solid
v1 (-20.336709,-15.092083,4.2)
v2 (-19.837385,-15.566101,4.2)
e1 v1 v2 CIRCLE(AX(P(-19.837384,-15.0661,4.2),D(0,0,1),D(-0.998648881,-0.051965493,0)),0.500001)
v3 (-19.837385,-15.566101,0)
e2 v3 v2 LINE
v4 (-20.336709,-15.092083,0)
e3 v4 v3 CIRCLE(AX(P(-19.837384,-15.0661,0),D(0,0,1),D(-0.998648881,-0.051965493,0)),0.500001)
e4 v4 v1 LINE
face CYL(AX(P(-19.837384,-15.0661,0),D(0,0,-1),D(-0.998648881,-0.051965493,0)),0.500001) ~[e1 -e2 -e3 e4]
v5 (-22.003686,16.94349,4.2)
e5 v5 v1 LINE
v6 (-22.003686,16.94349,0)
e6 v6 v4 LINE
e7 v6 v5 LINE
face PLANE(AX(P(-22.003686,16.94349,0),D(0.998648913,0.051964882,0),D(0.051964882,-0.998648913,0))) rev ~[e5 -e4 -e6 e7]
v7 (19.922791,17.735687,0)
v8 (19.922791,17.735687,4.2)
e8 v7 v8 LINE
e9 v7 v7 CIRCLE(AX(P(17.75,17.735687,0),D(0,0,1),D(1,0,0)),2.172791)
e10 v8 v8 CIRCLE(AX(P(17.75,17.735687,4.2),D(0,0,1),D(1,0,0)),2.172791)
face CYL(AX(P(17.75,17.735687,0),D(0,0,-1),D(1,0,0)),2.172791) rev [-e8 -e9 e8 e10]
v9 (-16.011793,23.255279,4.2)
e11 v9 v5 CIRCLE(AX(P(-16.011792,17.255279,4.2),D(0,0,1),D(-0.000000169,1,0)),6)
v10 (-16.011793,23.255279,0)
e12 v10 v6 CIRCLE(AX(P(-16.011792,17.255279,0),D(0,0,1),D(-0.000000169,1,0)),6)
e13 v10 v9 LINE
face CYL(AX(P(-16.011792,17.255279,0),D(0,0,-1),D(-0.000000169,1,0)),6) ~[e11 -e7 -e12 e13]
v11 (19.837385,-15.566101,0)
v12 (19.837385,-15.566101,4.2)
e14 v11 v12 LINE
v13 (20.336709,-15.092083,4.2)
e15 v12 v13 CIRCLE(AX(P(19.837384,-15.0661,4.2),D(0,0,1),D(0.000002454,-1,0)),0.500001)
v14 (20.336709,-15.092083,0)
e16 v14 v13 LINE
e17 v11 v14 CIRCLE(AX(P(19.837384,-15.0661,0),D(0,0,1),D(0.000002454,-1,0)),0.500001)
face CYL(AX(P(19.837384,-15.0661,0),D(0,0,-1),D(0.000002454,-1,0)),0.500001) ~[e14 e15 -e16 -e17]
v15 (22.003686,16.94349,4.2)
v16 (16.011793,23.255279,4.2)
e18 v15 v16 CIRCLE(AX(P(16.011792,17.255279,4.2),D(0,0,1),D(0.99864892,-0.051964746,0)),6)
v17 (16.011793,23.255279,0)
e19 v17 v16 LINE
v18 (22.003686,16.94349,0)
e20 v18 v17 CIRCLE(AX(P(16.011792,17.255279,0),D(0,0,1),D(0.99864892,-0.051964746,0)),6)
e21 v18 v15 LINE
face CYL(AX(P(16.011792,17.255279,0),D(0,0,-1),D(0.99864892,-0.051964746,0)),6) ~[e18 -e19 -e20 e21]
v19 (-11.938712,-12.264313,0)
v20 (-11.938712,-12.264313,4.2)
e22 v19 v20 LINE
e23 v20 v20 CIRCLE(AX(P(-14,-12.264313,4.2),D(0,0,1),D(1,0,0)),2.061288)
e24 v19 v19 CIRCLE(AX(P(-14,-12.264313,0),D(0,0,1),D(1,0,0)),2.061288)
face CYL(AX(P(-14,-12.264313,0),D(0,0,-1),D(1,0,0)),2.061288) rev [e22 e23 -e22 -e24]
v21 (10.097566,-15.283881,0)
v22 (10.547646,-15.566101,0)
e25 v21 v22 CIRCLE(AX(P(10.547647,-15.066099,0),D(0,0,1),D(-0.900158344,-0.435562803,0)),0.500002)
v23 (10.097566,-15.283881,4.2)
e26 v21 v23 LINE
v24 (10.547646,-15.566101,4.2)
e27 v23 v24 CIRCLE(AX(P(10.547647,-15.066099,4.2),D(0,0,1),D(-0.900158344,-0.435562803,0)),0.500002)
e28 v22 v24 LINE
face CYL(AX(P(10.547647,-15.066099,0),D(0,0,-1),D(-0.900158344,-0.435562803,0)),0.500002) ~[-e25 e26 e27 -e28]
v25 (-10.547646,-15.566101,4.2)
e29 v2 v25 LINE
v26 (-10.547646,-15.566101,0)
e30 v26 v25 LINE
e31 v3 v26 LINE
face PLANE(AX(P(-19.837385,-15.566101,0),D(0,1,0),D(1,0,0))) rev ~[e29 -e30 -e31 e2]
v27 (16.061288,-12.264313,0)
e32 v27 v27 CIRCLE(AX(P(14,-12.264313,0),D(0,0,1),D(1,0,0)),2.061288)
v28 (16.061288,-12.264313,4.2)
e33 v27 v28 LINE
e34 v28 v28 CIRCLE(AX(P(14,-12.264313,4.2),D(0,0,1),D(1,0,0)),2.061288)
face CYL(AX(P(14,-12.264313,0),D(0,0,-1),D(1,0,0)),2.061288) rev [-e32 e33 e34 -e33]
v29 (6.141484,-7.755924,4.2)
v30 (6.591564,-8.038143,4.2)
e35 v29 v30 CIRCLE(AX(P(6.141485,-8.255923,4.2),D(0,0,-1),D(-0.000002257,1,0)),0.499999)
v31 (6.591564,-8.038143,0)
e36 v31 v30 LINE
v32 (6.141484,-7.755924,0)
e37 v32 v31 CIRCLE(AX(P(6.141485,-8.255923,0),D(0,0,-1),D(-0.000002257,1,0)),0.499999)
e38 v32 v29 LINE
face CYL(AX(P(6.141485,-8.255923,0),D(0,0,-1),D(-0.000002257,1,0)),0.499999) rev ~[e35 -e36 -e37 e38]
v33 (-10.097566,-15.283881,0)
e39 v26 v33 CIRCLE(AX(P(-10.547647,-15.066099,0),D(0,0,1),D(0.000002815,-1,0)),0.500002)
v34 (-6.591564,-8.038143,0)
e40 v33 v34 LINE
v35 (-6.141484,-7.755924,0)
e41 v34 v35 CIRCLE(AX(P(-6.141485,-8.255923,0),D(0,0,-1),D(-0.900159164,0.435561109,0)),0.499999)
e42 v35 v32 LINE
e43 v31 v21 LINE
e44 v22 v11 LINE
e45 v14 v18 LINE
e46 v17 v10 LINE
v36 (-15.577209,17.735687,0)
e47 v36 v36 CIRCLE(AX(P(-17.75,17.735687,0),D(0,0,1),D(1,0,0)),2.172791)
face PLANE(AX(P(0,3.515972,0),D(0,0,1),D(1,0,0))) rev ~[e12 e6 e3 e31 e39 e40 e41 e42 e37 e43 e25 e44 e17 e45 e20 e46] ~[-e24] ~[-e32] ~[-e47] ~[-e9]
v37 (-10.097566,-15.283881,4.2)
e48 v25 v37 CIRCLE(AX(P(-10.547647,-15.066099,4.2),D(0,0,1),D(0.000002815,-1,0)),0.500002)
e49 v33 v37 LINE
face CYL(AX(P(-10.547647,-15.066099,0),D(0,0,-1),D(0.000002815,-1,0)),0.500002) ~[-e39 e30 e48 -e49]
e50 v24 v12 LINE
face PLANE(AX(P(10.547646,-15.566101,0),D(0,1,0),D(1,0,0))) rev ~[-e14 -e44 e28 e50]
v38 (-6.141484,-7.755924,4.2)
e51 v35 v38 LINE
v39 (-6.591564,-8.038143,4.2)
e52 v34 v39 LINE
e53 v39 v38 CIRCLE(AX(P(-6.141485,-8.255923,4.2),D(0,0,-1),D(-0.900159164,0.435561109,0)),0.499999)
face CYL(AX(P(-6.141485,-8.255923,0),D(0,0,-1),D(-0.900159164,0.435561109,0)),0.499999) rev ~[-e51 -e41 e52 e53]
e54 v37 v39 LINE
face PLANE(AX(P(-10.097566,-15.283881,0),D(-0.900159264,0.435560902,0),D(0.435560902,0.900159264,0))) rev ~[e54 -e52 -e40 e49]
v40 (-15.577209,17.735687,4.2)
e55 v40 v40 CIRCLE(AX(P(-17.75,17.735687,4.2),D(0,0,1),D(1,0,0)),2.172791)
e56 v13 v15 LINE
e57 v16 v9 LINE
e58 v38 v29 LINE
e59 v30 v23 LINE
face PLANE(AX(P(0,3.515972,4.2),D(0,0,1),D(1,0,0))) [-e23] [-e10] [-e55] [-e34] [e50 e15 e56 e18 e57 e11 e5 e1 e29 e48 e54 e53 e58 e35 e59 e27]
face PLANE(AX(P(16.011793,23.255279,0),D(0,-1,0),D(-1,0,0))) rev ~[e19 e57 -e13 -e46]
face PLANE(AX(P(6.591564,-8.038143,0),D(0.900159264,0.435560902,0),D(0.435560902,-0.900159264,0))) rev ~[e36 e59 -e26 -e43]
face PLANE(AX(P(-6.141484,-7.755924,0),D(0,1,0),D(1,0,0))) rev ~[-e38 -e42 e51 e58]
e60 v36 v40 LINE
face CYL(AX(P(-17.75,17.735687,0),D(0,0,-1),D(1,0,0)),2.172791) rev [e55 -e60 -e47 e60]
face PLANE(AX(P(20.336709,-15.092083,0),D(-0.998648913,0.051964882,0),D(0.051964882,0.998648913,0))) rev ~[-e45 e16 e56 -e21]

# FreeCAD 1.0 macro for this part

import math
import FreeCAD as App
import Part
import Sketcher

doc = App.newDocument("Part")
params = doc.addObject("Spreadsheet::Sheet", "Params")
for row, (alias, value) in enumerate([
    ("sketch1_radius", "6 mm"),
    ("sketch1_radius2", "0.500001 mm"),
    ("pad1_length", "4.2 mm"),
], start=1):
    params.set(f"A{row}", alias)
    params.set(f"B{row}", "=" + value)
    params.setAlias(f"B{row}", alias)

body = doc.addObject("PartDesign::Body", "Body")

sketch1 = doc.addObject("Sketcher::SketchObject", "Sketch")
body.addObject(sketch1)
sketch1.AttachmentSupport = (doc.XY_Plane, [""])
sketch1.MapMode = "FlatFace"
sketch1.addGeometry([
    Part.LineSegment(App.Vector(16.01, 23.26, 0), App.Vector(-16.01, 23.26, 0)),
    Part.ArcOfCircle(Part.Circle(App.Vector(-16.01, 17.26, 0), App.Vector(0, 0, 1), 6), math.radians(90), math.radians(183)),
    Part.LineSegment(App.Vector(-22, 16.94, 0), App.Vector(-20.34, -15.09, 0)),
    Part.ArcOfCircle(Part.Circle(App.Vector(-19.84, -15.07, 0), App.Vector(0, 0, 1), 0.5), math.radians(-177), math.radians(-90)),
    Part.LineSegment(App.Vector(-19.84, -15.57, 0), App.Vector(-10.55, -15.57, 0)),
    Part.ArcOfCircle(Part.Circle(App.Vector(-10.55, -15.07, 0), App.Vector(0, 0, 1), 0.5), math.radians(-90), math.radians(-26)),
    Part.LineSegment(App.Vector(-10.1, -15.28, 0), App.Vector(-6.59, -8.04, 0)),
    Part.ArcOfCircle(Part.Circle(App.Vector(-6.14, -8.26, 0), App.Vector(0, 0, 1), 0.5), math.radians(90), math.radians(154)),
    Part.LineSegment(App.Vector(-6.14, -7.76, 0), App.Vector(6.14, -7.76, 0)),
    Part.ArcOfCircle(Part.Circle(App.Vector(6.14, -8.26, 0), App.Vector(0, 0, 1), 0.5), math.radians(26), math.radians(90)),
    Part.LineSegment(App.Vector(6.59, -8.04, 0), App.Vector(10.1, -15.28, 0)),
    Part.ArcOfCircle(Part.Circle(App.Vector(10.55, -15.07, 0), App.Vector(0, 0, 1), 0.5), math.radians(-154), math.radians(-90)),
    Part.LineSegment(App.Vector(10.55, -15.57, 0), App.Vector(19.84, -15.57, 0)),
    Part.ArcOfCircle(Part.Circle(App.Vector(19.84, -15.07, 0), App.Vector(0, 0, 1), 0.5), math.radians(-90), math.radians(-3)),
    Part.LineSegment(App.Vector(20.34, -15.09, 0), App.Vector(22, 16.94, 0)),
    Part.ArcOfCircle(Part.Circle(App.Vector(16.01, 17.26, 0), App.Vector(0, 0, 1), 6), math.radians(-3), math.radians(90)),
    Part.Circle(App.Vector(-14, -12.26, 0), App.Vector(0, 0, 1), 2.06),
    Part.Circle(App.Vector(14, -12.26, 0), App.Vector(0, 0, 1), 2.06),
    Part.Circle(App.Vector(-17.75, 17.74, 0), App.Vector(0, 0, 1), 2.17),
    Part.Circle(App.Vector(17.75, 17.74, 0), App.Vector(0, 0, 1), 2.17),
], False)
sketch1.addConstraint([
    Sketcher.Constraint("Tangent", 0, 2, 1, 1),
    Sketcher.Constraint("Tangent", 1, 2, 2, 1),
    Sketcher.Constraint("Tangent", 2, 2, 3, 1),
    Sketcher.Constraint("Coincident", 3, 2, 4, 1),
    Sketcher.Constraint("Coincident", 4, 2, 5, 1),
    Sketcher.Constraint("Coincident", 5, 2, 6, 1),
    Sketcher.Constraint("Tangent", 6, 2, 7, 2),
    Sketcher.Constraint("Coincident", 7, 1, 8, 1),
    Sketcher.Constraint("Coincident", 8, 2, 9, 2),
    Sketcher.Constraint("Tangent", 9, 1, 10, 1),
    Sketcher.Constraint("Coincident", 10, 2, 11, 1),
    Sketcher.Constraint("Coincident", 11, 2, 12, 1),
    Sketcher.Constraint("Coincident", 12, 2, 13, 1),
    Sketcher.Constraint("Tangent", 13, 2, 14, 1),
    Sketcher.Constraint("Tangent", 14, 2, 15, 1),
    Sketcher.Constraint("Tangent", 15, 2, 0, 1),
    Sketcher.Constraint("Horizontal", 0),
    Sketcher.Constraint("Horizontal", 4),
    Sketcher.Constraint("Horizontal", 8),
    Sketcher.Constraint("Horizontal", 12),
    Sketcher.Constraint("Equal", 3, 5),
    Sketcher.Constraint("Equal", 3, 7),
    Sketcher.Constraint("Equal", 7, 9),
    Sketcher.Constraint("Equal", 5, 11),
    Sketcher.Constraint("Equal", 11, 13),
    Sketcher.Constraint("Equal", 1, 15),
    Sketcher.Constraint("Equal", 16, 17),
    Sketcher.Constraint("Equal", 18, 19),
    Sketcher.Constraint("Symmetric", 5, 3, 11, 3, -2),
    Sketcher.Constraint("Symmetric", 16, 3, 17, 3, -2),
    Sketcher.Constraint("Symmetric", 18, 3, 19, 3, -2),
    Sketcher.Constraint("Symmetric", 2, 2, 13, 2, -2),
    Sketcher.Constraint("Horizontal", 6, 2, 9, 1),
    Sketcher.Constraint("Horizontal", 5, 2, 10, 2),
    Sketcher.Constraint("Vertical", 5, 3, 4, 2),
    Sketcher.Constraint("Vertical", 9, 3, 8, 2),
    Sketcher.Constraint("Vertical", 13, 3, 12, 2),
    Sketcher.Constraint("Equal", 4, 12),
    Sketcher.Constraint("Radius", 1, 6.0),
    Sketcher.Constraint("Radius", 3, 0.500001),
    Sketcher.Constraint("DistanceX", 16, 3, -1, 1, 14.0),
    Sketcher.Constraint("DistanceY", 16, 3, 18, 3, 30.0),
    Sketcher.Constraint("DistanceX", 18, 3, -1, 1, 17.75),
    Sketcher.Constraint("Diameter", 16, 4.122576),
    Sketcher.Constraint("Diameter", 18, 4.345582),
    Sketcher.Constraint("DistanceX", 5, 2, 6, 2, 3.506002),
    Sketcher.Constraint("DistanceX", 4, 1, 4, 2, 9.289739),
    Sketcher.Constraint("DistanceY", 3, 3, -1, 1, 15.0661),
    Sketcher.Constraint("DistanceX", 3, 3, 7, 3, 13.695899),
    Sketcher.Constraint("DistanceY", 7, 3, 1, 3, 25.511202),
    Sketcher.Constraint("DistanceX", 1, 2, 7, 3, 15.862201),
    Sketcher.Constraint("DistanceX", 3, 2, 7, 3, 13.6959),
    Sketcher.Constraint("DistanceX", 0, 2, 0, 1, 32.023586),
    Sketcher.Constraint("DistanceX", 8, 1, 8, 2, 12.282968),
    Sketcher.Constraint("DistanceY", -1, 1, 1, 3, 17.255279),
    Sketcher.Constraint("DistanceY", 16, 3, 7, 3, 4.00839),
])
sketch1.setExpression("Constraints[38]", "Params.sketch1_radius")
sketch1.setExpression("Constraints[39]", "Params.sketch1_radius2")
pad1 = doc.addObject("PartDesign::Pad", "Pad")
body.addObject(pad1)
pad1.Profile = sketch1
pad1.setExpression("Length", "Params.pad1_length")

doc.recompute()
